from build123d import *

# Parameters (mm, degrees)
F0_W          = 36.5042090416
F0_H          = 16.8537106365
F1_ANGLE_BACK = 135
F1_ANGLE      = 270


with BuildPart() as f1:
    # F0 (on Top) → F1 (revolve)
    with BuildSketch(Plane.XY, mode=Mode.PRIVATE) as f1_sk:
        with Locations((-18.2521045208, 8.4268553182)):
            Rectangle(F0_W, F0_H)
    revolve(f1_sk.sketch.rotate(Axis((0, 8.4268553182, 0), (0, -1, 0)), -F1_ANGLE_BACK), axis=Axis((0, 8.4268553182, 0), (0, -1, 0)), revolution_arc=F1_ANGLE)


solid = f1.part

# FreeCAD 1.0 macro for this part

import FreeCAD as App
import Part
import Sketcher


def add_polygon(sketch, points):
    """Adds a closed chain of lines whose ends are joined by coincident constraints."""
    first, n = sketch.GeometryCount, len(points)
    for a, b in zip(points, points[1:] + points[:1]):
        sketch.addGeometry(Part.LineSegment(App.Vector(*a, 0), App.Vector(*b, 0)), False)
    for i in range(n):
        sketch.addConstraint(Sketcher.Constraint("Coincident", first + i, 2, first + (i + 1) % n, 1))

doc = App.newDocument("Part")
body = doc.addObject("PartDesign::Body", "Body")

# Sketch on an angled plane
sketch1 = doc.addObject("Sketcher::SketchObject", "Sketch")
body.addObject(sketch1)
sketch1.Placement = App.Placement(App.Vector(0, 0, 0), App.Rotation(App.Vector(-0.707106781, 0, -0.707106781), App.Vector(0, 0.999999999, 0), App.Vector(0.707106781, 0, -0.707106781), "ZXY"))
add_polygon(sketch1, [(-37, 17), (-37, 0), (0, 0), (0, 17)])  # lines 0-3
sketch1.addConstraint([
    Sketcher.Constraint("Vertical", 0),
    Sketcher.Constraint("Horizontal", 1),
    Sketcher.Constraint("Vertical", 2),
    Sketcher.Constraint("Horizontal", 3),
    Sketcher.Constraint("Coincident", 1, 2, -1, 1),
    Sketcher.Constraint("DistanceX", 1, 1, 1, 2, 36.504209),
    Sketcher.Constraint("DistanceY", 0, 2, 0, 1, 16.853711),
])
revolution = doc.addObject("PartDesign::Revolution", "Revolution")
body.addObject(revolution)
revolution.Profile = sketch1
revolution.ReferenceAxis = (sketch1, ["V_Axis"])
revolution.Angle = 270
revolution.Reversed = True

doc.recompute()
